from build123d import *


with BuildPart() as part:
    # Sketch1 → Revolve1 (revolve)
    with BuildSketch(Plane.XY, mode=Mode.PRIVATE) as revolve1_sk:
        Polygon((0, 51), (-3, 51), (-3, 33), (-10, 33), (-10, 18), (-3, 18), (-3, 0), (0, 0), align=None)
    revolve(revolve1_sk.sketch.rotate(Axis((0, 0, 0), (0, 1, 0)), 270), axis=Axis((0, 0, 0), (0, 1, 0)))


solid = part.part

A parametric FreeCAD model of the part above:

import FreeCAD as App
import Part
import Sketcher

V = App.Vector
Q = App.Units.Quantity


def add_polygon(sketch, points):
    """Adds a closed chain of lines whose ends are joined by coincident constraints."""
    first, n = sketch.GeometryCount, len(points)
    for a, b in zip(points, points[1:] + points[:1]):
        sketch.addGeometry(Part.LineSegment(App.Vector(*a, 0), App.Vector(*b, 0)), False)
    for i in range(n):
        sketch.addConstraint(Sketcher.Constraint("Coincident", first + i, 2, first + (i + 1) % n, 1))

doc = App.newDocument("Part")
body = doc.addObject("PartDesign::Body", "Body")

# Sketch on XY plane
sketch1 = body.newObject("Sketcher::SketchObject", "Sketch")
sketch1.AttachmentSupport = (doc.getObject("XY_Plane"), [""])
sketch1.MapMode = "FlatFace"
add_polygon(sketch1, [(0, 51), (-3, 51), (-3, 33), (-10, 33), (-10, 18), (-3, 18), (-3, 0), (0, 0)])  # lines 0-7
sketch1.addConstraint([
    Sketcher.Constraint("Horizontal", 0),
    Sketcher.Constraint("Vertical", 1),
    Sketcher.Constraint("Horizontal", 2),
    Sketcher.Constraint("Vertical", 3),
    Sketcher.Constraint("Horizontal", 4),
    Sketcher.Constraint("Vertical", 5),
    Sketcher.Constraint("Horizontal", 6),
    Sketcher.Constraint("Vertical", 7),
    Sketcher.Constraint("Coincident", 6, 2, -1, 1),
    Sketcher.Constraint("Vertical", 1, 2, 4, 2),
    Sketcher.Constraint("Equal", 1, 5),
    Sketcher.Constraint("DistanceX", 0, 2, 0, 1, Q("3 mm")),
    Sketcher.Constraint("DistanceX", 2, 2, 2, 1, Q("7 mm")),
    Sketcher.Constraint("DistanceY", 1, 2, 1, 1, Q("18 mm")),
    Sketcher.Constraint("DistanceY", 3, 2, 3, 1, Q("15 mm")),
])
revolution = body.newObject("PartDesign::Revolution", "Revolution")
revolution.Profile = sketch1
revolution.ReferenceAxis = (sketch1, ["V_Axis"])
revolution.Angle = 360

doc.recompute()
